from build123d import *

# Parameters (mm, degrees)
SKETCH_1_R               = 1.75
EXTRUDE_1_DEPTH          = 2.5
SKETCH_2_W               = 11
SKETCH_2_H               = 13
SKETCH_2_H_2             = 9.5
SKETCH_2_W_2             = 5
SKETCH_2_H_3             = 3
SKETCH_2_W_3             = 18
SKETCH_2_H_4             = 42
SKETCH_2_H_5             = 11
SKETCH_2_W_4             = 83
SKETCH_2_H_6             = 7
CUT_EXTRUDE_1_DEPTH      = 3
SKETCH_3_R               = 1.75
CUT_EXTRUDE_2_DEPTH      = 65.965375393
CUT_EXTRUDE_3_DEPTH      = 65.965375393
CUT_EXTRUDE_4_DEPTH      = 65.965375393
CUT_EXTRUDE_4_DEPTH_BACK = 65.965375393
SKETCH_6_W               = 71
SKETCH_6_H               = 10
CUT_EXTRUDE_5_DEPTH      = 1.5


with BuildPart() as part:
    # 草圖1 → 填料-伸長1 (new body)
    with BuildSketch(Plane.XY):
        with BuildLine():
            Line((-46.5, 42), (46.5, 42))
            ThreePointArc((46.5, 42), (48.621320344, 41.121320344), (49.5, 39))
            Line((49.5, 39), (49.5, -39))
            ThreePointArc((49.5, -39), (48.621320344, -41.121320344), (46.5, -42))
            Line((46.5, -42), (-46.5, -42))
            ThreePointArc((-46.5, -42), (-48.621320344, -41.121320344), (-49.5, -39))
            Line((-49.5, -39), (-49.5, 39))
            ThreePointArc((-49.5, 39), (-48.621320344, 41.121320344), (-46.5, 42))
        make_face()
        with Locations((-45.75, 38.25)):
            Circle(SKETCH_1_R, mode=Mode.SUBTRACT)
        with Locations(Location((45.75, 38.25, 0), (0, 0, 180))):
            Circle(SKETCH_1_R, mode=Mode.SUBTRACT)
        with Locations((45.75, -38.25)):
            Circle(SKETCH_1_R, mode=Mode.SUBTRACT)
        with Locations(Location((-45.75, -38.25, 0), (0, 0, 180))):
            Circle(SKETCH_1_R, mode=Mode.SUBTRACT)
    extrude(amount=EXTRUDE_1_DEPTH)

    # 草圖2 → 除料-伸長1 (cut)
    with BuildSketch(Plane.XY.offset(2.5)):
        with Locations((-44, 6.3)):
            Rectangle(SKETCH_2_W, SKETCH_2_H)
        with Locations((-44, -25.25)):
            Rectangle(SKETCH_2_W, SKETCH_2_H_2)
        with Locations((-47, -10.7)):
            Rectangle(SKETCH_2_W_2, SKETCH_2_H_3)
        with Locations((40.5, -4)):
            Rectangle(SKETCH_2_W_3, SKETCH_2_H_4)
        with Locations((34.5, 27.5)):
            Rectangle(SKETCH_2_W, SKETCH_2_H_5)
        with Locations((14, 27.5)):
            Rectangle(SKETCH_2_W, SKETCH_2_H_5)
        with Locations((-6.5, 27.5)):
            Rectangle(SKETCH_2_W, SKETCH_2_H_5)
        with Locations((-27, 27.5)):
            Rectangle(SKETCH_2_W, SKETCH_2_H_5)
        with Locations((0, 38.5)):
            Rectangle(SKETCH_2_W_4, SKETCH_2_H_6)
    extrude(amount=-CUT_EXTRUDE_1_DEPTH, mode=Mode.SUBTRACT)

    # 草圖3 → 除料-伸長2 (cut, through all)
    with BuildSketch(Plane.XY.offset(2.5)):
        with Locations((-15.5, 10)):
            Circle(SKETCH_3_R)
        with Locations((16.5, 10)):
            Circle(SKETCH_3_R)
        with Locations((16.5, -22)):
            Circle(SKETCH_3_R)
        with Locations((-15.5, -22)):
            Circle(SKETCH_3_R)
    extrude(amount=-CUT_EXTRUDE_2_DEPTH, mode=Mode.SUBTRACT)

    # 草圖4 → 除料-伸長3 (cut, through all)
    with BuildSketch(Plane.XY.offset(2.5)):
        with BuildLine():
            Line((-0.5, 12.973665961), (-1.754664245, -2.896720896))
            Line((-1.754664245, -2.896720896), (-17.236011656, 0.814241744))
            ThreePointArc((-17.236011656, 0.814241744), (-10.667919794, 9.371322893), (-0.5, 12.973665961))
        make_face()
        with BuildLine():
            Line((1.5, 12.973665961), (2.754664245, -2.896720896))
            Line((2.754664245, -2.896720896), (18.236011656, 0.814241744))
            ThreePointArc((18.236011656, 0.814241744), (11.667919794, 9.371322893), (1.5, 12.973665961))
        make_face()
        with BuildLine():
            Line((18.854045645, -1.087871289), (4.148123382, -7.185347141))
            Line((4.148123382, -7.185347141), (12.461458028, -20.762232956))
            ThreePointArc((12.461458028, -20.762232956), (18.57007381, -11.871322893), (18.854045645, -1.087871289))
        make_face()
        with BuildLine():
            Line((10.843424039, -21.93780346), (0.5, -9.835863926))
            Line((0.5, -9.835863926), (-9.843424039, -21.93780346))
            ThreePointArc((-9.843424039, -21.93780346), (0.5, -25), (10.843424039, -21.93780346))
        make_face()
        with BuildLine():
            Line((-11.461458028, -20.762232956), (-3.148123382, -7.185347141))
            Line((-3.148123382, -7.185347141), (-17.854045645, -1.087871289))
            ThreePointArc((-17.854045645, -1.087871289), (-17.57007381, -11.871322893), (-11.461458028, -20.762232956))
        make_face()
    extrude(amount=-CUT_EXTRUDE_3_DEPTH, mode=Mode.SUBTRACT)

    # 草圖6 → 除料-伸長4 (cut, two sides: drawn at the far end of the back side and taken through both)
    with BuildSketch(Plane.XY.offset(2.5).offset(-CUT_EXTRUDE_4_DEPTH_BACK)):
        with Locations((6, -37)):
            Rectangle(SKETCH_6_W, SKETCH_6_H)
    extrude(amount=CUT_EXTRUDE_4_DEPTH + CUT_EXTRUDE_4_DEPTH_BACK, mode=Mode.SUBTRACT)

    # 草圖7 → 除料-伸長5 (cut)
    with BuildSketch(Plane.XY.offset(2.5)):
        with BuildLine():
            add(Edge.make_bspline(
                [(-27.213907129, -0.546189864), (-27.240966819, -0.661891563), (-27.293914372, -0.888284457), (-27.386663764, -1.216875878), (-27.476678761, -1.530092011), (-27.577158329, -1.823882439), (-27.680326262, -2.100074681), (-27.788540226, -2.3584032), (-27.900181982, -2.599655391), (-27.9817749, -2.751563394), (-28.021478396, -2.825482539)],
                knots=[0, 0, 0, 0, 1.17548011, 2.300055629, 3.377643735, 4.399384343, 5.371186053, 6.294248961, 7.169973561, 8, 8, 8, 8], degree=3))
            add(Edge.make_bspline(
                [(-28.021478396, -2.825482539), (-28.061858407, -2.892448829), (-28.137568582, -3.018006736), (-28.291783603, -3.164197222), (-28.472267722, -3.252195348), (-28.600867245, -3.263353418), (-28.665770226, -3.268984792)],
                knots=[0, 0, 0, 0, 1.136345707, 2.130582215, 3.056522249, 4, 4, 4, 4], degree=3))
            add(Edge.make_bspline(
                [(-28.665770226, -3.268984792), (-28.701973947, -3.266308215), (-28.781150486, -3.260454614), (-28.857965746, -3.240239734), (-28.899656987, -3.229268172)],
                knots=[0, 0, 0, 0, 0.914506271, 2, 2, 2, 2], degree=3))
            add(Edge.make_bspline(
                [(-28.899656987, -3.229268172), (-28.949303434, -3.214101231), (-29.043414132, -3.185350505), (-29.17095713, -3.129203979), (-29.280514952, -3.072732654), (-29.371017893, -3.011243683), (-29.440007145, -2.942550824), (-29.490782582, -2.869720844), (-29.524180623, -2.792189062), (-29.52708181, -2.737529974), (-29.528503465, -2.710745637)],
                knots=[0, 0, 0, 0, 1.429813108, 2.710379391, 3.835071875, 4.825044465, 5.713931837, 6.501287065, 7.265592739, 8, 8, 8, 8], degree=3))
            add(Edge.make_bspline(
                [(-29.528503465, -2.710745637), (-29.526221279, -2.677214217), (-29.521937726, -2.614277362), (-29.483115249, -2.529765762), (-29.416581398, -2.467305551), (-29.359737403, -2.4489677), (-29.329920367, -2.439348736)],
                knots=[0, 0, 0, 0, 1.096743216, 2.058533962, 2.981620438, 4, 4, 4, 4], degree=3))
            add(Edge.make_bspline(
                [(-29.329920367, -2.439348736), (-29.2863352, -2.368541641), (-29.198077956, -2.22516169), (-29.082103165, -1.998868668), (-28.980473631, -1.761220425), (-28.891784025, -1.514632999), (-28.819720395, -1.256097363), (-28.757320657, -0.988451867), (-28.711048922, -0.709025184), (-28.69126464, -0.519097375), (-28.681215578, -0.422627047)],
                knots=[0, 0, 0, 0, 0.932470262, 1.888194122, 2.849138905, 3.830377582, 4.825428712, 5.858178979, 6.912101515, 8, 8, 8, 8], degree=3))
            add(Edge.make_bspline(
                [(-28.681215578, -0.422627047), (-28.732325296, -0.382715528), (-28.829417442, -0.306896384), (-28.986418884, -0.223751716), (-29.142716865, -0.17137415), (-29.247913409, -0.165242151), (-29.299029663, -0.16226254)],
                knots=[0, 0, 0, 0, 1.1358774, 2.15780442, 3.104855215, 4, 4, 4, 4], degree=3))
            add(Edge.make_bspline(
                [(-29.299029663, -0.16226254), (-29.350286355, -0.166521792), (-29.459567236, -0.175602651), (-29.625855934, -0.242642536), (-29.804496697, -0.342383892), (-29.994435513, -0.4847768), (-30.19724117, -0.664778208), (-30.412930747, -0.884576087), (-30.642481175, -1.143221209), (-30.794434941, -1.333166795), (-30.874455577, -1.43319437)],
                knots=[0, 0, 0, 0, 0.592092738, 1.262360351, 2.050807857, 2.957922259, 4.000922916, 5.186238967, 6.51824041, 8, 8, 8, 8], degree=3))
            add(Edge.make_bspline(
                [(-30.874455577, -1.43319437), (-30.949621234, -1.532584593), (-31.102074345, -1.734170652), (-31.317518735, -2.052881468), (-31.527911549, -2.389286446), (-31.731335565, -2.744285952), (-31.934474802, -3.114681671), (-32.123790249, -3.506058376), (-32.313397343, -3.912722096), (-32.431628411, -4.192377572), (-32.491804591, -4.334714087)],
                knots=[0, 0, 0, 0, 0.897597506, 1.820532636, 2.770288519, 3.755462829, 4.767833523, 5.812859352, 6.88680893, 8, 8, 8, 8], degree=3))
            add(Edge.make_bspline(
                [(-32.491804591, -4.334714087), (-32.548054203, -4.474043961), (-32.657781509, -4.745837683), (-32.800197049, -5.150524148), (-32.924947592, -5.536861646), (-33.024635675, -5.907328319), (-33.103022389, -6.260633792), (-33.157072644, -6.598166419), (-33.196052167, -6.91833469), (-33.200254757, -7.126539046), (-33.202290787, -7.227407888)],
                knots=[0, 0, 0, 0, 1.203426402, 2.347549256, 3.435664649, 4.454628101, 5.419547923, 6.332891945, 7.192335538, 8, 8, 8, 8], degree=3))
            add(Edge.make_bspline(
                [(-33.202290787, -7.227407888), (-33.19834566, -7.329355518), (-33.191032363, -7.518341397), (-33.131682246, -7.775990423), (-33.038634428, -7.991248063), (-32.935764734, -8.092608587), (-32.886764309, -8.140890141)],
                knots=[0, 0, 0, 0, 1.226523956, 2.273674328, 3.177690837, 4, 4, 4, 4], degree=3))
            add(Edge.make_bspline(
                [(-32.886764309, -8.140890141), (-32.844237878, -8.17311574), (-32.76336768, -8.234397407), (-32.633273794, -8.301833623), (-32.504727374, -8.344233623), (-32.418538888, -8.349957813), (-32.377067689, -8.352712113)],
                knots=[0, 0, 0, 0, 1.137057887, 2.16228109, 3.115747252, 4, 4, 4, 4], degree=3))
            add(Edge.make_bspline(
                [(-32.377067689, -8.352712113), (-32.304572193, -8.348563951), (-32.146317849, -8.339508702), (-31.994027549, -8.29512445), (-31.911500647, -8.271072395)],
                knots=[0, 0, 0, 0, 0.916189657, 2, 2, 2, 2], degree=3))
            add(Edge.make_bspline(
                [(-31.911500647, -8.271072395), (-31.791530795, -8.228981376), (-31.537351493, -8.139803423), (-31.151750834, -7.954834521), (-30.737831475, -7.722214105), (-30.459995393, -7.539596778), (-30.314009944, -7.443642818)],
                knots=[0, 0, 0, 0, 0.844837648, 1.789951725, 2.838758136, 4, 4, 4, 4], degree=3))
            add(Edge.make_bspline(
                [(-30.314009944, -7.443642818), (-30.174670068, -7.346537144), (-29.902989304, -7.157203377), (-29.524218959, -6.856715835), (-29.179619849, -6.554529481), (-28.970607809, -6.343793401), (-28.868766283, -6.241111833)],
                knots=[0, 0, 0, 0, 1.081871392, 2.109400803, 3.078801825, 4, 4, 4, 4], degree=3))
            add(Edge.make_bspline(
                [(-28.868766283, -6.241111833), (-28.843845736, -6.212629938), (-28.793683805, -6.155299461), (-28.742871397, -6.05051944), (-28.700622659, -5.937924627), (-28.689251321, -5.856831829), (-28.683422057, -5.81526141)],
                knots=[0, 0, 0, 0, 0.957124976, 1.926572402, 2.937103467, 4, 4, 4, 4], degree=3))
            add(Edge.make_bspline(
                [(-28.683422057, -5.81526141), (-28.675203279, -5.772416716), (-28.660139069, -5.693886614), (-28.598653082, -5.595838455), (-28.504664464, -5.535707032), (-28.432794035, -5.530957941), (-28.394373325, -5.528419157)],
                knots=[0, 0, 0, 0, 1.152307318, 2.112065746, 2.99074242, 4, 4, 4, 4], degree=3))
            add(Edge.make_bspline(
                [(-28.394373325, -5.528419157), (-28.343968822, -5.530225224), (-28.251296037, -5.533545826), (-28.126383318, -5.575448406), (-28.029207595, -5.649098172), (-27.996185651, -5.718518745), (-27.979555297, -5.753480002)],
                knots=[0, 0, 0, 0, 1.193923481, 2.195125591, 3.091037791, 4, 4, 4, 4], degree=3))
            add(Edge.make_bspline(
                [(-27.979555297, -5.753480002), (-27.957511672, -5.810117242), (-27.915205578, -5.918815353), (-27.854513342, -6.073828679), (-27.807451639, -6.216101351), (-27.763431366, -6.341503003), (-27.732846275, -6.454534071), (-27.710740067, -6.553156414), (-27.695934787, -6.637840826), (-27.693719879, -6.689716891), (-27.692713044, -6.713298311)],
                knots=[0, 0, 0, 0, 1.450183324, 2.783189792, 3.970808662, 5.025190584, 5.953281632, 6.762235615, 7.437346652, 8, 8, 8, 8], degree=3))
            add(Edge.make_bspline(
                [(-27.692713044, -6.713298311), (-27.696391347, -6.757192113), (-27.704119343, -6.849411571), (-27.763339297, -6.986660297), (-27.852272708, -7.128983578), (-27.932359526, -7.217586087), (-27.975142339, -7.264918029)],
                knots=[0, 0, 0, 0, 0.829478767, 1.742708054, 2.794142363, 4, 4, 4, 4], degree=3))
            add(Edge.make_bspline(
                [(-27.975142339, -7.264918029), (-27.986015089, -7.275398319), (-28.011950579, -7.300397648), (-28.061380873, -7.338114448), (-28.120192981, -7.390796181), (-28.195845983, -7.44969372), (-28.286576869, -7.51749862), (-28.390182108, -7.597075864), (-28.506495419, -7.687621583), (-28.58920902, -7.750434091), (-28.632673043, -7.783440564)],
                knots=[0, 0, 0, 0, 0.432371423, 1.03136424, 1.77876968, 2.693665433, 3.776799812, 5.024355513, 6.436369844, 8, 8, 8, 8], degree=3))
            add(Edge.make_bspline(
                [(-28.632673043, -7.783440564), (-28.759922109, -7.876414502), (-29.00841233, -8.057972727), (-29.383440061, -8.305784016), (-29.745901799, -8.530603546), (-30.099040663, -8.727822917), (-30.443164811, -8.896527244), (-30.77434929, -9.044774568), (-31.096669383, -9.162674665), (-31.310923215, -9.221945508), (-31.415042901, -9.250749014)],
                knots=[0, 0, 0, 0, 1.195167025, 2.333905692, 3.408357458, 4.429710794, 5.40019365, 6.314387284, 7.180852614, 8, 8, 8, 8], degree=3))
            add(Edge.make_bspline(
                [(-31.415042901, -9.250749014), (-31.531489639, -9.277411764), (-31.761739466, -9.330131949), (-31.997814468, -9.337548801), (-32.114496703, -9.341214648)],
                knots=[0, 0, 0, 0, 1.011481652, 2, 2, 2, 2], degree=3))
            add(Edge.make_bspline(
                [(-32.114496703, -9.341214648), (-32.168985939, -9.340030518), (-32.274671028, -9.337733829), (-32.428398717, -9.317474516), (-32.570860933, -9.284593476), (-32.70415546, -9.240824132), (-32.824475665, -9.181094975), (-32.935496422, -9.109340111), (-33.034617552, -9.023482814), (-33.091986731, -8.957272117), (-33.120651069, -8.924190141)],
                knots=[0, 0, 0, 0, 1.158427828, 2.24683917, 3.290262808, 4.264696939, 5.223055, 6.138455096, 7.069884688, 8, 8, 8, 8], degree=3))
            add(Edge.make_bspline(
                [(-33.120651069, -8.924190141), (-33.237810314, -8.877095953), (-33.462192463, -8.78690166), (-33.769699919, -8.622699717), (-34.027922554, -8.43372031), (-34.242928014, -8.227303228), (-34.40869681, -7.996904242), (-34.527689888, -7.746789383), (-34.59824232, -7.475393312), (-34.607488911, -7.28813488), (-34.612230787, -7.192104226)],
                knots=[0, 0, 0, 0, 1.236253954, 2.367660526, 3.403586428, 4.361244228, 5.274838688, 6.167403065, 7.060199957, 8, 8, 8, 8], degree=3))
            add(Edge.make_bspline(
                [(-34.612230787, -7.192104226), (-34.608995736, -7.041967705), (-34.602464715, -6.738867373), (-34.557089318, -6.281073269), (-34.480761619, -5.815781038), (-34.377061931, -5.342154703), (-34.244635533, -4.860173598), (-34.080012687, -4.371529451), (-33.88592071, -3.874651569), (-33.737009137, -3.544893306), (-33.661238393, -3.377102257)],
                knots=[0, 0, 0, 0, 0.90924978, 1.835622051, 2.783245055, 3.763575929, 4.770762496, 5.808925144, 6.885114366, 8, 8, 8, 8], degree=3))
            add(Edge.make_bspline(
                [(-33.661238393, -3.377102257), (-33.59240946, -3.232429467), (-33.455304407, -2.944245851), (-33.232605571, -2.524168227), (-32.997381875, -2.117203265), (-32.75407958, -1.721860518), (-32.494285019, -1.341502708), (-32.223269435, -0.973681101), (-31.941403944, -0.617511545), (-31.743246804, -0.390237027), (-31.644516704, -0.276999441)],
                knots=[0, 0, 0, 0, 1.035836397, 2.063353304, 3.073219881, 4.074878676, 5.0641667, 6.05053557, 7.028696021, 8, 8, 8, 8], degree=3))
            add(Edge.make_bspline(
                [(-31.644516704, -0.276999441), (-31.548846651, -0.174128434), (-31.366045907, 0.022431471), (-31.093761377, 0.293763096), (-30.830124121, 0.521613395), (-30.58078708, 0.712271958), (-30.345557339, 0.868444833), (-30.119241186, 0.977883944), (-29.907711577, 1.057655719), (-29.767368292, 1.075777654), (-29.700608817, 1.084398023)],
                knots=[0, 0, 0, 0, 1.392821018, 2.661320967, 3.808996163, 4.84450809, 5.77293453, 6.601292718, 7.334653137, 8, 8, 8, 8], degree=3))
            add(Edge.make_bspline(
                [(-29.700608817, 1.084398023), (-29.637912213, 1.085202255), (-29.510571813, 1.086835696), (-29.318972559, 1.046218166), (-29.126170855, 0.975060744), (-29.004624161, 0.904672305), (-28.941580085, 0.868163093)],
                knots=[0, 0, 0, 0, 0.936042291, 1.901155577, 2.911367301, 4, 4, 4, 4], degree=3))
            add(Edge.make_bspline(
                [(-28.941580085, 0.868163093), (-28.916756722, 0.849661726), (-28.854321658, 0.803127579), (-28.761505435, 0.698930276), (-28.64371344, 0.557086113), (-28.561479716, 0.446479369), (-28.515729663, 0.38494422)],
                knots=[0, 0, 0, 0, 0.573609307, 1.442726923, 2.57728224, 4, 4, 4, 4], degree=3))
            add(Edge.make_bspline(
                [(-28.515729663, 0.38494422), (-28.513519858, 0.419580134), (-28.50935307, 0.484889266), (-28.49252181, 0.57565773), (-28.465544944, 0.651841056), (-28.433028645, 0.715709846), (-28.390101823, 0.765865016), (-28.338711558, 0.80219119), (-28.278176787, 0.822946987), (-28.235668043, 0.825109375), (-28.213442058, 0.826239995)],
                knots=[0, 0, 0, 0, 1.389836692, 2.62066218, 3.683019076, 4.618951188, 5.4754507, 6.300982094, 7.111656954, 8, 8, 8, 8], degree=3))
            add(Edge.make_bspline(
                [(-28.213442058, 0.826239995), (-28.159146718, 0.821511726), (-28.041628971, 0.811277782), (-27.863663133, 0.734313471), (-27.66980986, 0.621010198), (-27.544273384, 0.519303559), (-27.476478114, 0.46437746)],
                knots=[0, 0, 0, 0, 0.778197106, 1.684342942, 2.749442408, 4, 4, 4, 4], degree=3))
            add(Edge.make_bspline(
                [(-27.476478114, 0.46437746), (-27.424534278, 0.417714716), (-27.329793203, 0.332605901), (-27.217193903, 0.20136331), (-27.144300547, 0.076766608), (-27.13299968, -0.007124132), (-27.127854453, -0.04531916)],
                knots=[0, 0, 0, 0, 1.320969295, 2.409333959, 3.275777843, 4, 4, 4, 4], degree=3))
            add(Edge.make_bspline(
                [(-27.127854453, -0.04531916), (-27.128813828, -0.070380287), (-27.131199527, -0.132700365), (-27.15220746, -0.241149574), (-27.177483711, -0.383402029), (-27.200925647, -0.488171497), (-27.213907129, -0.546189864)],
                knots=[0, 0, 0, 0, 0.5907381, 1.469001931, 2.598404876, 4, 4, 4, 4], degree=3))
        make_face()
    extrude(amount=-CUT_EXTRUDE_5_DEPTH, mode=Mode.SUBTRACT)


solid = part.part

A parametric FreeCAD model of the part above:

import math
import FreeCAD as App
import Part
import Sketcher

V = App.Vector
Q = App.Units.Quantity


def add_polygon(sketch, points):
    """Adds a closed chain of lines whose ends are joined by coincident constraints."""
    first, n = sketch.GeometryCount, len(points)
    for a, b in zip(points, points[1:] + points[:1]):
        sketch.addGeometry(Part.LineSegment(App.Vector(*a, 0), App.Vector(*b, 0)), False)
    for i in range(n):
        sketch.addConstraint(Sketcher.Constraint("Coincident", first + i, 2, first + (i + 1) % n, 1))

doc = App.newDocument("Part")
params = doc.addObject("Spreadsheet::Sheet", "Params")
for row, (alias, value) in enumerate([
    ("sketch1_radius", "3 mm"),
    ("sketch1_diameter", "3.5 mm"),
    ("sketch1_width", "93 mm"),
    ("sketch1_height", "78 mm"),
    ("pad1_length", "2.5 mm"),
    ("sketch2_width", "11 mm"),
    ("sketch2_width2", "5 mm"),
    ("sketch2_width3", "18 mm"),
    ("sketch2_width4", "83 mm"),
    ("sketch2_height", "13 mm"),
    ("pocket1_length", "3 mm"),
    ("sketch3_diameter", "3.5 mm"),
    ("sketch4_radius", "19 mm"),
    ("sketch5_width", "71 mm"),
    ("sketch5_height", "10 mm"),
    ("pocket5_length", "1.5 mm"),
], start=1):
    params.set(f"A{row}", alias)
    params.set(f"B{row}", "=" + value)
    params.setAlias(f"B{row}", alias)

body = doc.addObject("PartDesign::Body", "Body")

# Sketch on XY plane
sketch1 = doc.addObject("Sketcher::SketchObject", "Sketch")
body.addObject(sketch1)
sketch1.AttachmentSupport = (doc.XY_Plane, [""])
sketch1.MapMode = "FlatFace"
sketch1.addGeometry(Part.LineSegment(V(46.5, 42, 0), V(-46.5, 42, 0)), False)
sketch1.addGeometry(Part.ArcOfCircle(Part.Circle(V(-46.5, 39, 0), V(0, 0, 1), 3), math.radians(90), math.radians(180)), False)
sketch1.addGeometry(Part.LineSegment(V(-49.5, 39, 0), V(-49.5, -39, 0)), False)
sketch1.addGeometry(Part.ArcOfCircle(Part.Circle(V(-46.5, -39, 0), V(0, 0, 1), 3), math.radians(180), math.radians(270)), False)
sketch1.addGeometry(Part.LineSegment(V(-46.5, -42, 0), V(46.5, -42, 0)), False)
sketch1.addGeometry(Part.ArcOfCircle(Part.Circle(V(46.5, -39, 0), V(0, 0, 1), 3), math.radians(-90), math.radians(0)), False)
sketch1.addGeometry(Part.LineSegment(V(49.5, -39, 0), V(49.5, 39, 0)), False)
sketch1.addGeometry(Part.ArcOfCircle(Part.Circle(V(46.5, 39, 0), V(0, 0, 1), 3), math.radians(0), math.radians(90)), False)
sketch1.addGeometry(Part.Circle(V(45.8, -38.2, 0), V(0, 0, 1), 1.8), False)
sketch1.addGeometry(Part.Circle(V(-45.8, -38.2, 0), V(0, 0, 1), 1.8), False)
sketch1.addGeometry(Part.Circle(V(45.8, 38.2, 0), V(0, 0, 1), 1.8), False)
sketch1.addGeometry(Part.Circle(V(-45.8, 38.2, 0), V(0, 0, 1), 1.8), False)
sketch1.addConstraint(Sketcher.Constraint("Tangent", 0, 2, 1, 1))
sketch1.addConstraint(Sketcher.Constraint("Tangent", 1, 2, 2, 1))
sketch1.addConstraint(Sketcher.Constraint("Tangent", 2, 2, 3, 1))
sketch1.addConstraint(Sketcher.Constraint("Tangent", 3, 2, 4, 1))
sketch1.addConstraint(Sketcher.Constraint("Tangent", 4, 2, 5, 1))
sketch1.addConstraint(Sketcher.Constraint("Tangent", 5, 2, 6, 1))
sketch1.addConstraint(Sketcher.Constraint("Tangent", 6, 2, 7, 1))
sketch1.addConstraint(Sketcher.Constraint("Tangent", 7, 2, 0, 1))
sketch1.addConstraint(Sketcher.Constraint("Horizontal", 0))
sketch1.addConstraint(Sketcher.Constraint("Vertical", 2))
sketch1.addConstraint(Sketcher.Constraint("Horizontal", 4))
sketch1.addConstraint(Sketcher.Constraint("Vertical", 6))
sketch1.addConstraint(Sketcher.Constraint("Equal", 1, 3))
sketch1.addConstraint(Sketcher.Constraint("Equal", 3, 5))
sketch1.addConstraint(Sketcher.Constraint("Equal", 5, 7))
sketch1.addConstraint(Sketcher.Constraint("Equal", 8, 9))
sketch1.addConstraint(Sketcher.Constraint("Equal", 9, 10))
sketch1.addConstraint(Sketcher.Constraint("Equal", 10, 11))
sketch1.addConstraint(Sketcher.Constraint("Symmetric", 1, 3, 5, 3, -1, 1))
sketch1.addConstraint(Sketcher.Constraint("Symmetric", 9, 3, 10, 3, -1, 1))
sketch1.addConstraint(Sketcher.Constraint("Symmetric", 8, 3, 11, 3, -1, 1))
sketch1.addConstraint(Sketcher.Constraint("Symmetric", 8, 3, 9, 3, -2))
sketch1.addConstraint(Sketcher.Constraint("Radius", 1, Q("3 mm")))
sketch1.addConstraint(Sketcher.Constraint("Diameter", 8, Q("3.5 mm")))
sketch1.addConstraint(Sketcher.Constraint("DistanceX", 0, 2, 0, 1, Q("93 mm")))
sketch1.addConstraint(Sketcher.Constraint("DistanceY", 2, 2, 2, 1, Q("78 mm")))
sketch1.addConstraint(Sketcher.Constraint("DistanceX", 9, 3, 8, 3, Q("91.5 mm")))
sketch1.addConstraint(Sketcher.Constraint("DistanceY", 8, 3, 10, 3, Q("76.5 mm")))
sketch1.setExpression("Constraints[22]", "Params.sketch1_radius")
sketch1.setExpression("Constraints[23]", "Params.sketch1_diameter")
sketch1.setExpression("Constraints[24]", "Params.sketch1_width")
sketch1.setExpression("Constraints[25]", "Params.sketch1_height")
pad1 = doc.addObject("PartDesign::Pad", "Pad")
body.addObject(pad1)
pad1.Profile = sketch1
pad1.setExpression("Length", "Params.pad1_length")

# Sketch on XY plane
sketch2 = doc.addObject("Sketcher::SketchObject", "Sketch001")
body.addObject(sketch2)
sketch2.AttachmentSupport = (doc.XY_Plane, [""])
sketch2.MapMode = "FlatFace"
sketch2.AttachmentOffset = App.Placement(V(0, 0, 2.5), App.Rotation())
add_polygon(sketch2, [(-49.5, 12.8), (-49.5, -0.2), (-38.5, -0.2), (-38.5, 12.8)])  # lines 0-3
add_polygon(sketch2, [(-49.5, -20.5), (-49.5, -30), (-38.5, -30), (-38.5, -20.5)])  # lines 4-7
add_polygon(sketch2, [(-49.5, -9.2), (-49.5, -12.2), (-44.5, -12.2), (-44.5, -9.2)])  # lines 8-11
add_polygon(sketch2, [(31.5, 17), (31.5, -25), (49.5, -25), (49.5, 17)])  # lines 12-15
add_polygon(sketch2, [(29, 33), (29, 22), (40, 22), (40, 33)])  # lines 16-19
add_polygon(sketch2, [(8.5, 33), (8.5, 22), (19.5, 22), (19.5, 33)])  # lines 20-23
add_polygon(sketch2, [(-12, 33), (-12, 22), (-1, 22), (-1, 33)])  # lines 24-27
add_polygon(sketch2, [(-32.5, 33), (-32.5, 22), (-21.5, 22), (-21.5, 33)])  # lines 28-31
add_polygon(sketch2, [(-41.5, 42), (-41.5, 35), (41.5, 35), (41.5, 42)])  # lines 32-35
sketch2.addConstraint(Sketcher.Constraint("Vertical", 0))
sketch2.addConstraint(Sketcher.Constraint("Horizontal", 1))
sketch2.addConstraint(Sketcher.Constraint("Vertical", 2))
sketch2.addConstraint(Sketcher.Constraint("Horizontal", 3))
sketch2.addConstraint(Sketcher.Constraint("Vertical", 4))
sketch2.addConstraint(Sketcher.Constraint("Horizontal", 5))
sketch2.addConstraint(Sketcher.Constraint("Vertical", 6))
sketch2.addConstraint(Sketcher.Constraint("Horizontal", 7))
sketch2.addConstraint(Sketcher.Constraint("Vertical", 8))
sketch2.addConstraint(Sketcher.Constraint("Horizontal", 9))
sketch2.addConstraint(Sketcher.Constraint("Vertical", 10))
sketch2.addConstraint(Sketcher.Constraint("Horizontal", 11))
sketch2.addConstraint(Sketcher.Constraint("Vertical", 12))
sketch2.addConstraint(Sketcher.Constraint("Horizontal", 13))
sketch2.addConstraint(Sketcher.Constraint("Vertical", 14))
sketch2.addConstraint(Sketcher.Constraint("Horizontal", 15))
sketch2.addConstraint(Sketcher.Constraint("Vertical", 16))
sketch2.addConstraint(Sketcher.Constraint("Horizontal", 17))
sketch2.addConstraint(Sketcher.Constraint("Vertical", 18))
sketch2.addConstraint(Sketcher.Constraint("Horizontal", 19))
sketch2.addConstraint(Sketcher.Constraint("Vertical", 20))
sketch2.addConstraint(Sketcher.Constraint("Horizontal", 21))
sketch2.addConstraint(Sketcher.Constraint("Vertical", 22))
sketch2.addConstraint(Sketcher.Constraint("Horizontal", 23))
sketch2.addConstraint(Sketcher.Constraint("Vertical", 24))
sketch2.addConstraint(Sketcher.Constraint("Horizontal", 25))
sketch2.addConstraint(Sketcher.Constraint("Vertical", 26))
sketch2.addConstraint(Sketcher.Constraint("Horizontal", 27))
sketch2.addConstraint(Sketcher.Constraint("Vertical", 28))
sketch2.addConstraint(Sketcher.Constraint("Horizontal", 29))
sketch2.addConstraint(Sketcher.Constraint("Vertical", 30))
sketch2.addConstraint(Sketcher.Constraint("Horizontal", 31))
sketch2.addConstraint(Sketcher.Constraint("Vertical", 32))
sketch2.addConstraint(Sketcher.Constraint("Horizontal", 33))
sketch2.addConstraint(Sketcher.Constraint("Vertical", 34))
sketch2.addConstraint(Sketcher.Constraint("Horizontal", 35))
sketch2.addConstraint(Sketcher.Constraint("Horizontal", 17, 2, 20, 2))
sketch2.addConstraint(Sketcher.Constraint("Horizontal", 19, 2, 22, 2))
sketch2.addConstraint(Sketcher.Constraint("Horizontal", 21, 2, 24, 2))
sketch2.addConstraint(Sketcher.Constraint("Horizontal", 23, 2, 26, 2))
sketch2.addConstraint(Sketcher.Constraint("Horizontal", 25, 2, 28, 2))
sketch2.addConstraint(Sketcher.Constraint("Horizontal", 27, 2, 30, 2))
sketch2.addConstraint(Sketcher.Constraint("Vertical", 3, 2, 4, 2))
sketch2.addConstraint(Sketcher.Constraint("Vertical", 2, 2, 5, 2))
sketch2.addConstraint(Sketcher.Constraint("Vertical", 7, 2, 8, 2))
sketch2.addConstraint(Sketcher.Constraint("Equal", 7, 17))
sketch2.addConstraint(Sketcher.Constraint("Equal", 19, 21))
sketch2.addConstraint(Sketcher.Constraint("Equal", 23, 25))
sketch2.addConstraint(Sketcher.Constraint("Equal", 27, 29))
sketch2.addConstraint(Sketcher.Constraint("Equal", 31, 16))
sketch2.addConstraint(Sketcher.Constraint("DistanceX", 1, 1, 1, 2, Q("11 mm")))
sketch2.addConstraint(Sketcher.Constraint("DistanceX", 9, 1, 9, 2, Q("5 mm")))
sketch2.addConstraint(Sketcher.Constraint("DistanceX", 13, 1, 13, 2, Q("18 mm")))
sketch2.addConstraint(Sketcher.Constraint("DistanceX", 33, 1, 33, 2, Q("83 mm")))
sketch2.addConstraint(Sketcher.Constraint("DistanceY", 0, 2, 0, 1, Q("13 mm")))
sketch2.addConstraint(Sketcher.Constraint("DistanceY", 8, 2, 8, 1, Q("3 mm")))
sketch2.addConstraint(Sketcher.Constraint("DistanceY", 12, 2, 12, 1, Q("42 mm")))
sketch2.addConstraint(Sketcher.Constraint("DistanceY", 32, 2, 32, 1, Q("7 mm")))
sketch2.addConstraint(Sketcher.Constraint("DistanceY", 4, 2, 4, 1, Q("9.5 mm")))
sketch2.addConstraint(Sketcher.Constraint("DistanceY", 4, 2, -1, 1, Q("30 mm")))
sketch2.addConstraint(Sketcher.Constraint("DistanceY", 12, 2, -1, 1, Q("25 mm")))
sketch2.addConstraint(Sketcher.Constraint("DistanceX", -1, 1, 16, 2, Q("29 mm")))
sketch2.addConstraint(Sketcher.Constraint("DistanceY", -1, 1, 16, 2, Q("22 mm")))
sketch2.addConstraint(Sketcher.Constraint("DistanceX", 24, 2, -1, 1, Q("12 mm")))
sketch2.addConstraint(Sketcher.Constraint("DistanceY", -1, 1, 32, 2, Q("35 mm")))
sketch2.addConstraint(Sketcher.Constraint("DistanceY", 8, 2, 0, 2, Q("12 mm")))
sketch2.addConstraint(Sketcher.Constraint("DistanceX", 6, 2, 12, 2, Q("70 mm")))
sketch2.addConstraint(Sketcher.Constraint("DistanceX", 20, 2, 15, 2, Q("23 mm")))
sketch2.addConstraint(Sketcher.Constraint("DistanceX", 2, 2, 28, 2, Q("6 mm")))
sketch2.addConstraint(Sketcher.Constraint("DistanceX", 32, 2, 31, 2, Q("9 mm")))
sketch2.addConstraint(Sketcher.Constraint("DistanceX", 0, 2, -1, 1, Q("49.5 mm")))
sketch2.addConstraint(Sketcher.Constraint("DistanceY", 0, 2, -1, 1, Q("0.2 mm")))
sketch2.setExpression("Constraints[86]", "Params.sketch2_width")
sketch2.setExpression("Constraints[87]", "Params.sketch2_width2")
sketch2.setExpression("Constraints[88]", "Params.sketch2_width3")
sketch2.setExpression("Constraints[89]", "Params.sketch2_width4")
sketch2.setExpression("Constraints[90]", "Params.sketch2_height")
pocket1 = doc.addObject("PartDesign::Pocket", "Pocket")
body.addObject(pocket1)
pocket1.Profile = sketch2
pocket1.setExpression("Length", "Params.pocket1_length")

# Sketch on XY plane
sketch3 = doc.addObject("Sketcher::SketchObject", "Sketch002")
body.addObject(sketch3)
sketch3.AttachmentSupport = (doc.XY_Plane, [""])
sketch3.MapMode = "FlatFace"
sketch3.AttachmentOffset = App.Placement(V(0, 0, 2.5), App.Rotation())
sketch3.addGeometry(Part.Circle(V(-15.5, 10, 0), V(0, 0, 1), 1.8), False)
sketch3.addGeometry(Part.Circle(V(16.5, 10, 0), V(0, 0, 1), 1.8), False)
sketch3.addGeometry(Part.Circle(V(16.5, -22, 0), V(0, 0, 1), 1.8), False)
sketch3.addGeometry(Part.Circle(V(-15.5, -22, 0), V(0, 0, 1), 1.8), False)
sketch3.addConstraint(Sketcher.Constraint("Equal", 0, 1))
sketch3.addConstraint(Sketcher.Constraint("Equal", 1, 2))
sketch3.addConstraint(Sketcher.Constraint("Equal", 2, 3))
sketch3.addConstraint(Sketcher.Constraint("Horizontal", 0, 3, 1, 3))
sketch3.addConstraint(Sketcher.Constraint("Horizontal", 2, 3, 3, 3))
sketch3.addConstraint(Sketcher.Constraint("Vertical", 1, 3, 2, 3))
sketch3.addConstraint(Sketcher.Constraint("Vertical", 0, 3, 3, 3))
sketch3.addConstraint(Sketcher.Constraint("Diameter", 0, Q("3.5 mm")))
sketch3.addConstraint(Sketcher.Constraint("DistanceY", -1, 1, 0, 3, Q("10 mm")))
sketch3.addConstraint(Sketcher.Constraint("DistanceY", 2, 3, -1, 1, Q("22 mm")))
sketch3.addConstraint(Sketcher.Constraint("DistanceX", 0, 3, 1, 3, Q("32 mm")))
sketch3.addConstraint(Sketcher.Constraint("DistanceX", 0, 3, -1, 1, Q("15.5 mm")))
sketch3.setExpression("Constraints[7]", "Params.sketch3_diameter")
pocket2 = doc.addObject("PartDesign::Pocket", "Pocket001")
body.addObject(pocket2)
pocket2.Profile = sketch3
pocket2.Type = "ThroughAll"

# Sketch on XY plane
sketch4 = doc.addObject("Sketcher::SketchObject", "Sketch003")
body.addObject(sketch4)
sketch4.AttachmentSupport = (doc.XY_Plane, [""])
sketch4.MapMode = "FlatFace"
sketch4.AttachmentOffset = App.Placement(V(0, 0, 2.5), App.Rotation())
sketch4.addGeometry(Part.LineSegment(V(-2, -3, 0), V(0, 13, 0)), False)
sketch4.addGeometry(Part.ArcOfCircle(Part.Circle(V(0, -6, 0), V(0, 0, 1), 19), math.radians(93), math.radians(159)), False)
sketch4.addGeometry(Part.LineSegment(V(-17, 1, 0), V(-2, -3, 0)), False)
sketch4.addGeometry(Part.LineSegment(V(2, 13, 0), V(3, -3, 0)), False)
sketch4.addGeometry(Part.LineSegment(V(3, -3, 0), V(18, 1, 0)), False)
sketch4.addGeometry(Part.ArcOfCircle(Part.Circle(V(0, -6, 0), V(0, 0, 1), 19), math.radians(21), math.radians(87)), False)
sketch4.addGeometry(Part.LineSegment(V(19, -1, 0), V(4, -7, 0)), False)
sketch4.addGeometry(Part.LineSegment(V(4, -7, 0), V(12, -21, 0)), False)
sketch4.addGeometry(Part.ArcOfCircle(Part.Circle(V(1, -6, 0), V(0, 0, 1), 19), math.radians(-51), math.radians(15)), False)
sketch4.addGeometry(Part.LineSegment(V(11, -22, 0), V(0, -10, 0)), False)
sketch4.addGeometry(Part.LineSegment(V(0, -10, 0), V(-10, -22, 0)), False)
sketch4.addGeometry(Part.ArcOfCircle(Part.Circle(V(0, -6, 0), V(0, 0, 1), 19), math.radians(-123), math.radians(-57)), False)
sketch4.addGeometry(Part.LineSegment(V(-11, -21, 0), V(-3, -7, 0)), False)
sketch4.addGeometry(Part.LineSegment(V(-3, -7, 0), V(-18, -1, 0)), False)
sketch4.addGeometry(Part.ArcOfCircle(Part.Circle(V(0, -6, 0), V(0, 0, 1), 19), math.radians(165), math.radians(231)), False)
sketch4.addConstraint(Sketcher.Constraint("Coincident", 0, 2, 1, 1))
sketch4.addConstraint(Sketcher.Constraint("Coincident", 1, 2, 2, 1))
sketch4.addConstraint(Sketcher.Constraint("Coincident", 2, 2, 0, 1))
sketch4.addConstraint(Sketcher.Constraint("Coincident", 3, 2, 4, 1))
sketch4.addConstraint(Sketcher.Constraint("Coincident", 4, 2, 5, 1))
sketch4.addConstraint(Sketcher.Constraint("Coincident", 5, 2, 3, 1))
sketch4.addConstraint(Sketcher.Constraint("Coincident", 6, 2, 7, 1))
sketch4.addConstraint(Sketcher.Constraint("Coincident", 7, 2, 8, 1))
sketch4.addConstraint(Sketcher.Constraint("Coincident", 8, 2, 6, 1))
sketch4.addConstraint(Sketcher.Constraint("Coincident", 9, 2, 10, 1))
sketch4.addConstraint(Sketcher.Constraint("Coincident", 10, 2, 11, 1))
sketch4.addConstraint(Sketcher.Constraint("Coincident", 11, 2, 9, 1))
sketch4.addConstraint(Sketcher.Constraint("Coincident", 12, 2, 13, 1))
sketch4.addConstraint(Sketcher.Constraint("Coincident", 13, 2, 14, 1))
sketch4.addConstraint(Sketcher.Constraint("Coincident", 14, 2, 12, 1))
sketch4.addConstraint(Sketcher.Constraint("Coincident", 5, 3, 1, 3))
sketch4.addConstraint(Sketcher.Constraint("Coincident", 8, 3, 1, 3))
sketch4.addConstraint(Sketcher.Constraint("Coincident", 11, 3, 1, 3))
sketch4.addConstraint(Sketcher.Constraint("Coincident", 14, 3, 1, 3))
sketch4.addConstraint(Sketcher.Constraint("Equal", 1, 5))
sketch4.addConstraint(Sketcher.Constraint("Equal", 5, 8))
sketch4.addConstraint(Sketcher.Constraint("Equal", 8, 11))
sketch4.addConstraint(Sketcher.Constraint("Equal", 11, 14))
sketch4.addConstraint(Sketcher.Constraint("Horizontal", 2, 2, 3, 2))
sketch4.addConstraint(Sketcher.Constraint("Horizontal", 1, 2, 4, 2))
sketch4.addConstraint(Sketcher.Constraint("Horizontal", 0, 2, 5, 2))
sketch4.addConstraint(Sketcher.Constraint("Horizontal", 10, 2, 11, 2))
sketch4.addConstraint(Sketcher.Constraint("Horizontal", 6, 2, 12, 2))
sketch4.addConstraint(Sketcher.Constraint("Horizontal", 8, 2, 13, 2))
sketch4.addConstraint(Sketcher.Constraint("Horizontal", 7, 2, 14, 2))
sketch4.addConstraint(Sketcher.Constraint("Vertical", 14, 3, 9, 2))
sketch4.addConstraint(Sketcher.Constraint("Equal", 0, 2))
sketch4.addConstraint(Sketcher.Constraint("Equal", 2, 3))
sketch4.addConstraint(Sketcher.Constraint("Equal", 4, 6))
sketch4.addConstraint(Sketcher.Constraint("Equal", 6, 7))
sketch4.addConstraint(Sketcher.Constraint("Equal", 7, 9))
sketch4.addConstraint(Sketcher.Constraint("Equal", 10, 12))
sketch4.addConstraint(Sketcher.Constraint("Radius", 1, Q("19 mm")))
sketch4.addConstraint(Sketcher.Constraint("DistanceY", 1, 3, -1, 1, Q("6 mm")))
sketch4.addConstraint(Sketcher.Constraint("DistanceX", 0, 2, 14, 3, Q("1 mm")))
sketch4.addConstraint(Sketcher.Constraint("DistanceX", -1, 1, 1, 3, Q("0.5 mm")))
sketch4.addConstraint(Sketcher.Constraint("DistanceX", 6, 2, 11, 2, Q("6.695301 mm")))
sketch4.addConstraint(Sketcher.Constraint("DistanceX", 1, 2, -1, 1, Q("17.236012 mm")))
sketch4.addConstraint(Sketcher.Constraint("DistanceY", 2, 2, -1, 1, Q("2.896721 mm")))
sketch4.addConstraint(Sketcher.Constraint("DistanceX", -1, 1, 7, 2, Q("12.461458 mm")))
sketch4.addConstraint(Sketcher.Constraint("DistanceY", 8, 2, -1, 1, Q("1.087871 mm")))
sketch4.setExpression("Constraints[37]", "Params.sketch4_radius")
pocket3 = doc.addObject("PartDesign::Pocket", "Pocket002")
body.addObject(pocket3)
pocket3.Profile = sketch4
pocket3.Type = "ThroughAll"

# Sketch on XY plane
sketch5 = doc.addObject("Sketcher::SketchObject", "Sketch004")
body.addObject(sketch5)
sketch5.AttachmentSupport = (doc.XY_Plane, [""])
sketch5.MapMode = "FlatFace"
sketch5.AttachmentOffset = App.Placement(V(0, 0, 2.5), App.Rotation())
add_polygon(sketch5, [(-30, -32), (-30, -42), (42, -42), (42, -32)])  # lines 0-3
sketch5.addConstraint(Sketcher.Constraint("Vertical", 0))
sketch5.addConstraint(Sketcher.Constraint("Horizontal", 1))
sketch5.addConstraint(Sketcher.Constraint("Vertical", 2))
sketch5.addConstraint(Sketcher.Constraint("Horizontal", 3))
sketch5.addConstraint(Sketcher.Constraint("DistanceX", 1, 1, 1, 2, Q("71 mm")))
sketch5.addConstraint(Sketcher.Constraint("DistanceY", 0, 2, 0, 1, Q("10 mm")))
sketch5.addConstraint(Sketcher.Constraint("DistanceY", 0, 2, -1, 1, Q("42 mm")))
sketch5.addConstraint(Sketcher.Constraint("DistanceX", 0, 2, -1, 1, Q("29.5 mm")))
sketch5.setExpression("Constraints[8]", "Params.sketch5_width")
sketch5.setExpression("Constraints[9]", "Params.sketch5_height")
pocket4 = doc.addObject("PartDesign::Pocket", "Pocket003")
body.addObject(pocket4)
pocket4.Profile = sketch5
pocket4.Type = "ThroughAll"
pocket4.Midplane = True

# Sketch on XY plane
sketch6 = doc.addObject("Sketcher::SketchObject", "Sketch005")
body.addObject(sketch6)
sketch6.AttachmentSupport = (doc.XY_Plane, [""])
sketch6.MapMode = "FlatFace"
sketch6.AttachmentOffset = App.Placement(V(0, 0, 2.5), App.Rotation())
sketch6.addGeometry(Part.BSplineCurve([V(-27.213907, -0.54619, 0), V(-27.240967, -0.661892, 0), V(-27.293914, -0.888284, 0), V(-27.386664, -1.216876, 0), V(-27.476679, -1.530092, 0), V(-27.577158, -1.823882, 0), V(-27.680326, -2.100075, 0), V(-27.78854, -2.358403, 0), V(-27.900182, -2.599655, 0), V(-27.981775, -2.751563, 0), V(-28.021478, -2.825483, 0)], [4, 1, 1, 1, 1, 1, 1, 1, 4], [0, 1.17548011, 2.300055629, 3.377643735, 4.399384343, 5.371186053, 6.294248961, 7.169973561, 8], False, 3, [1, 1, 1, 1, 1, 1, 1, 1, 1, 1, 1], False), False)
sketch6.addGeometry(Part.BSplineCurve([V(-27.127854, -0.045319, 0), V(-27.128814, -0.07038, 0), V(-27.1312, -0.1327, 0), V(-27.152207, -0.24115, 0), V(-27.177484, -0.383402, 0), V(-27.200926, -0.488171, 0), V(-27.213907, -0.54619, 0)], [4, 1, 1, 1, 4], [0, 0.5907381, 1.469001931, 2.598404876, 4], False, 3, [1, 1, 1, 1, 1, 1, 1], False), False)
sketch6.addGeometry(Part.BSplineCurve([V(-27.476478, 0.464377, 0), V(-27.424534, 0.417715, 0), V(-27.329793, 0.332606, 0), V(-27.217194, 0.201363, 0), V(-27.144301, 0.076767, 0), V(-27.133, -0.007124, 0), V(-27.127854, -0.045319, 0)], [4, 1, 1, 1, 4], [0, 1.320969295, 2.409333959, 3.275777843, 4], False, 3, [1, 1, 1, 1, 1, 1, 1], False), False)
sketch6.addGeometry(Part.BSplineCurve([V(-28.213442, 0.82624, 0), V(-28.159147, 0.821512, 0), V(-28.041629, 0.811278, 0), V(-27.863663, 0.734313, 0), V(-27.66981, 0.62101, 0), V(-27.544273, 0.519304, 0), V(-27.476478, 0.464377, 0)], [4, 1, 1, 1, 4], [0, 0.778197106, 1.684342942, 2.749442408, 4], False, 3, [1, 1, 1, 1, 1, 1, 1], False), False)
sketch6.addGeometry(Part.BSplineCurve([V(-28.51573, 0.384944, 0), V(-28.51352, 0.41958, 0), V(-28.509353, 0.484889, 0), V(-28.492522, 0.575658, 0), V(-28.465545, 0.651841, 0), V(-28.433029, 0.71571, 0), V(-28.390102, 0.765865, 0), V(-28.338712, 0.802191, 0), V(-28.278177, 0.822947, 0), V(-28.235668, 0.825109, 0), V(-28.213442, 0.82624, 0)], [4, 1, 1, 1, 1, 1, 1, 1, 4], [0, 1.389836692, 2.62066218, 3.683019076, 4.618951188, 5.4754507, 6.300982094, 7.111656954, 8], False, 3, [1, 1, 1, 1, 1, 1, 1, 1, 1, 1, 1], False), False)
sketch6.addGeometry(Part.BSplineCurve([V(-28.94158, 0.868163, 0), V(-28.916757, 0.849662, 0), V(-28.854322, 0.803128, 0), V(-28.761505, 0.69893, 0), V(-28.643713, 0.557086, 0), V(-28.56148, 0.446479, 0), V(-28.51573, 0.384944, 0)], [4, 1, 1, 1, 4], [0, 0.573609307, 1.442726923, 2.57728224, 4], False, 3, [1, 1, 1, 1, 1, 1, 1], False), False)
sketch6.addGeometry(Part.BSplineCurve([V(-29.700609, 1.084398, 0), V(-29.637912, 1.085202, 0), V(-29.510572, 1.086836, 0), V(-29.318973, 1.046218, 0), V(-29.126171, 0.975061, 0), V(-29.004624, 0.904672, 0), V(-28.94158, 0.868163, 0)], [4, 1, 1, 1, 4], [0, 0.936042291, 1.901155577, 2.911367301, 4], False, 3, [1, 1, 1, 1, 1, 1, 1], False), False)
sketch6.addGeometry(Part.BSplineCurve([V(-31.644517, -0.276999, 0), V(-31.548847, -0.174128, 0), V(-31.366046, 0.022431, 0), V(-31.093761, 0.293763, 0), V(-30.830124, 0.521613, 0), V(-30.580787, 0.712272, 0), V(-30.345557, 0.868445, 0), V(-30.119241, 0.977884, 0), V(-29.907712, 1.057656, 0), V(-29.767368, 1.075778, 0), V(-29.700609, 1.084398, 0)], [4, 1, 1, 1, 1, 1, 1, 1, 4], [0, 1.392821018, 2.661320967, 3.808996163, 4.84450809, 5.77293453, 6.601292718, 7.334653137, 8], False, 3, [1, 1, 1, 1, 1, 1, 1, 1, 1, 1, 1], False), False)
sketch6.addGeometry(Part.BSplineCurve([V(-33.661238, -3.377102, 0), V(-33.592409, -3.232429, 0), V(-33.455304, -2.944246, 0), V(-33.232606, -2.524168, 0), V(-32.997382, -2.117203, 0), V(-32.75408, -1.721861, 0), V(-32.494285, -1.341503, 0), V(-32.223269, -0.973681, 0), V(-31.941404, -0.617512, 0), V(-31.743247, -0.390237, 0), V(-31.644517, -0.276999, 0)], [4, 1, 1, 1, 1, 1, 1, 1, 4], [0, 1.035836397, 2.063353304, 3.073219881, 4.074878676, 5.0641667, 6.05053557, 7.028696021, 8], False, 3, [1, 1, 1, 1, 1, 1, 1, 1, 1, 1, 1], False), False)
sketch6.addGeometry(Part.BSplineCurve([V(-34.612231, -7.192104, 0), V(-34.608996, -7.041968, 0), V(-34.602465, -6.738867, 0), V(-34.557089, -6.281073, 0), V(-34.480762, -5.815781, 0), V(-34.377062, -5.342155, 0), V(-34.244636, -4.860174, 0), V(-34.080013, -4.371529, 0), V(-33.885921, -3.874652, 0), V(-33.737009, -3.544893, 0), V(-33.661238, -3.377102, 0)], [4, 1, 1, 1, 1, 1, 1, 1, 4], [0, 0.90924978, 1.835622051, 2.783245055, 3.763575929, 4.770762496, 5.808925144, 6.885114366, 8], False, 3, [1, 1, 1, 1, 1, 1, 1, 1, 1, 1, 1], False), False)
sketch6.addGeometry(Part.BSplineCurve([V(-33.120651, -8.92419, 0), V(-33.23781, -8.877096, 0), V(-33.462192, -8.786902, 0), V(-33.7697, -8.6227, 0), V(-34.027923, -8.43372, 0), V(-34.242928, -8.227303, 0), V(-34.408697, -7.996904, 0), V(-34.52769, -7.746789, 0), V(-34.598242, -7.475393, 0), V(-34.607489, -7.288135, 0), V(-34.612231, -7.192104, 0)], [4, 1, 1, 1, 1, 1, 1, 1, 4], [0, 1.236253954, 2.367660526, 3.403586428, 4.361244228, 5.274838688, 6.167403065, 7.060199957, 8], False, 3, [1, 1, 1, 1, 1, 1, 1, 1, 1, 1, 1], False), False)
sketch6.addGeometry(Part.BSplineCurve([V(-32.114497, -9.341215, 0), V(-32.168986, -9.340031, 0), V(-32.274671, -9.337734, 0), V(-32.428399, -9.317475, 0), V(-32.570861, -9.284593, 0), V(-32.704155, -9.240824, 0), V(-32.824476, -9.181095, 0), V(-32.935496, -9.10934, 0), V(-33.034618, -9.023483, 0), V(-33.091987, -8.957272, 0), V(-33.120651, -8.92419, 0)], [4, 1, 1, 1, 1, 1, 1, 1, 4], [0, 1.158427828, 2.24683917, 3.290262808, 4.264696939, 5.223055, 6.138455096, 7.069884688, 8], False, 3, [1, 1, 1, 1, 1, 1, 1, 1, 1, 1, 1], False), False)
sketch6.addGeometry(Part.BSplineCurve([V(-31.415043, -9.250749, 0), V(-31.53149, -9.277412, 0), V(-31.761739, -9.330132, 0), V(-31.997814, -9.337549, 0), V(-32.114497, -9.341215, 0)], [4, 1, 4], [0, 1.011481652, 2], False, 3, [1, 1, 1, 1, 1], False), False)
sketch6.addGeometry(Part.BSplineCurve([V(-28.632673, -7.783441, 0), V(-28.759922, -7.876415, 0), V(-29.008412, -8.057973, 0), V(-29.38344, -8.305784, 0), V(-29.745902, -8.530604, 0), V(-30.099041, -8.727823, 0), V(-30.443165, -8.896527, 0), V(-30.774349, -9.044775, 0), V(-31.096669, -9.162675, 0), V(-31.310923, -9.221946, 0), V(-31.415043, -9.250749, 0)], [4, 1, 1, 1, 1, 1, 1, 1, 4], [0, 1.195167025, 2.333905692, 3.408357458, 4.429710794, 5.40019365, 6.314387284, 7.180852614, 8], False, 3, [1, 1, 1, 1, 1, 1, 1, 1, 1, 1, 1], False), False)
sketch6.addGeometry(Part.BSplineCurve([V(-27.975142, -7.264918, 0), V(-27.986015, -7.275398, 0), V(-28.011951, -7.300398, 0), V(-28.061381, -7.338114, 0), V(-28.120193, -7.390796, 0), V(-28.195846, -7.449694, 0), V(-28.286577, -7.517499, 0), V(-28.390182, -7.597076, 0), V(-28.506495, -7.687622, 0), V(-28.589209, -7.750434, 0), V(-28.632673, -7.783441, 0)], [4, 1, 1, 1, 1, 1, 1, 1, 4], [0, 0.432371423, 1.03136424, 1.77876968, 2.693665433, 3.776799812, 5.024355513, 6.436369844, 8], False, 3, [1, 1, 1, 1, 1, 1, 1, 1, 1, 1, 1], False), False)
sketch6.addGeometry(Part.BSplineCurve([V(-27.692713, -6.713298, 0), V(-27.696391, -6.757192, 0), V(-27.704119, -6.849412, 0), V(-27.763339, -6.98666, 0), V(-27.852273, -7.128984, 0), V(-27.93236, -7.217586, 0), V(-27.975142, -7.264918, 0)], [4, 1, 1, 1, 4], [0, 0.829478767, 1.742708054, 2.794142363, 4], False, 3, [1, 1, 1, 1, 1, 1, 1], False), False)
sketch6.addGeometry(Part.BSplineCurve([V(-27.979555, -5.75348, 0), V(-27.957512, -5.810117, 0), V(-27.915206, -5.918815, 0), V(-27.854513, -6.073829, 0), V(-27.807452, -6.216101, 0), V(-27.763431, -6.341503, 0), V(-27.732846, -6.454534, 0), V(-27.71074, -6.553156, 0), V(-27.695935, -6.637841, 0), V(-27.69372, -6.689717, 0), V(-27.692713, -6.713298, 0)], [4, 1, 1, 1, 1, 1, 1, 1, 4], [0, 1.450183324, 2.783189792, 3.970808662, 5.025190584, 5.953281632, 6.762235615, 7.437346652, 8], False, 3, [1, 1, 1, 1, 1, 1, 1, 1, 1, 1, 1], False), False)
sketch6.addGeometry(Part.BSplineCurve([V(-28.394373, -5.528419, 0), V(-28.343969, -5.530225, 0), V(-28.251296, -5.533546, 0), V(-28.126383, -5.575448, 0), V(-28.029208, -5.649098, 0), V(-27.996186, -5.718519, 0), V(-27.979555, -5.75348, 0)], [4, 1, 1, 1, 4], [0, 1.193923481, 2.195125591, 3.091037791, 4], False, 3, [1, 1, 1, 1, 1, 1, 1], False), False)
sketch6.addGeometry(Part.BSplineCurve([V(-28.683422, -5.815261, 0), V(-28.675203, -5.772417, 0), V(-28.660139, -5.693887, 0), V(-28.598653, -5.595838, 0), V(-28.504664, -5.535707, 0), V(-28.432794, -5.530958, 0), V(-28.394373, -5.528419, 0)], [4, 1, 1, 1, 4], [0, 1.152307318, 2.112065746, 2.99074242, 4], False, 3, [1, 1, 1, 1, 1, 1, 1], False), False)
sketch6.addGeometry(Part.BSplineCurve([V(-28.868766, -6.241112, 0), V(-28.843846, -6.21263, 0), V(-28.793684, -6.155299, 0), V(-28.742871, -6.050519, 0), V(-28.700623, -5.937925, 0), V(-28.689251, -5.856832, 0), V(-28.683422, -5.815261, 0)], [4, 1, 1, 1, 4], [0, 0.957124976, 1.926572402, 2.937103467, 4], False, 3, [1, 1, 1, 1, 1, 1, 1], False), False)
sketch6.addGeometry(Part.BSplineCurve([V(-30.31401, -7.443643, 0), V(-30.17467, -7.346537, 0), V(-29.902989, -7.157203, 0), V(-29.524219, -6.856716, 0), V(-29.17962, -6.554529, 0), V(-28.970608, -6.343793, 0), V(-28.868766, -6.241112, 0)], [4, 1, 1, 1, 4], [0, 1.081871392, 2.109400803, 3.078801825, 4], False, 3, [1, 1, 1, 1, 1, 1, 1], False), False)
sketch6.addGeometry(Part.BSplineCurve([V(-31.911501, -8.271072, 0), V(-31.791531, -8.228981, 0), V(-31.537351, -8.139803, 0), V(-31.151751, -7.954835, 0), V(-30.737831, -7.722214, 0), V(-30.459995, -7.539597, 0), V(-30.31401, -7.443643, 0)], [4, 1, 1, 1, 4], [0, 0.844837648, 1.789951725, 2.838758136, 4], False, 3, [1, 1, 1, 1, 1, 1, 1], False), False)
sketch6.addGeometry(Part.BSplineCurve([V(-32.377068, -8.352712, 0), V(-32.304572, -8.348564, 0), V(-32.146318, -8.339509, 0), V(-31.994028, -8.295124, 0), V(-31.911501, -8.271072, 0)], [4, 1, 4], [0, 0.916189657, 2], False, 3, [1, 1, 1, 1, 1], False), False)
sketch6.addGeometry(Part.BSplineCurve([V(-32.886764, -8.14089, 0), V(-32.844238, -8.173116, 0), V(-32.763368, -8.234397, 0), V(-32.633274, -8.301834, 0), V(-32.504727, -8.344234, 0), V(-32.418539, -8.349958, 0), V(-32.377068, -8.352712, 0)], [4, 1, 1, 1, 4], [0, 1.137057887, 2.16228109, 3.115747252, 4], False, 3, [1, 1, 1, 1, 1, 1, 1], False), False)
sketch6.addGeometry(Part.BSplineCurve([V(-33.202291, -7.227408, 0), V(-33.198346, -7.329356, 0), V(-33.191032, -7.518341, 0), V(-33.131682, -7.77599, 0), V(-33.038634, -7.991248, 0), V(-32.935765, -8.092609, 0), V(-32.886764, -8.14089, 0)], [4, 1, 1, 1, 4], [0, 1.226523956, 2.273674328, 3.177690837, 4], False, 3, [1, 1, 1, 1, 1, 1, 1], False), False)
sketch6.addGeometry(Part.BSplineCurve([V(-32.491805, -4.334714, 0), V(-32.548054, -4.474044, 0), V(-32.657782, -4.745838, 0), V(-32.800197, -5.150524, 0), V(-32.924948, -5.536862, 0), V(-33.024636, -5.907328, 0), V(-33.103022, -6.260634, 0), V(-33.157073, -6.598166, 0), V(-33.196052, -6.918335, 0), V(-33.200255, -7.126539, 0), V(-33.202291, -7.227408, 0)], [4, 1, 1, 1, 1, 1, 1, 1, 4], [0, 1.203426402, 2.347549256, 3.435664649, 4.454628101, 5.419547923, 6.332891945, 7.192335538, 8], False, 3, [1, 1, 1, 1, 1, 1, 1, 1, 1, 1, 1], False), False)
sketch6.addGeometry(Part.BSplineCurve([V(-30.874456, -1.433194, 0), V(-30.949621, -1.532585, 0), V(-31.102074, -1.734171, 0), V(-31.317519, -2.052881, 0), V(-31.527912, -2.389286, 0), V(-31.731336, -2.744286, 0), V(-31.934475, -3.114682, 0), V(-32.12379, -3.506058, 0), V(-32.313397, -3.912722, 0), V(-32.431628, -4.192378, 0), V(-32.491805, -4.334714, 0)], [4, 1, 1, 1, 1, 1, 1, 1, 4], [0, 0.897597506, 1.820532636, 2.770288519, 3.755462829, 4.767833523, 5.812859352, 6.88680893, 8], False, 3, [1, 1, 1, 1, 1, 1, 1, 1, 1, 1, 1], False), False)
sketch6.addGeometry(Part.BSplineCurve([V(-29.29903, -0.162263, 0), V(-29.350286, -0.166522, 0), V(-29.459567, -0.175603, 0), V(-29.625856, -0.242643, 0), V(-29.804497, -0.342384, 0), V(-29.994436, -0.484777, 0), V(-30.197241, -0.664778, 0), V(-30.412931, -0.884576, 0), V(-30.642481, -1.143221, 0), V(-30.794435, -1.333167, 0), V(-30.874456, -1.433194, 0)], [4, 1, 1, 1, 1, 1, 1, 1, 4], [0, 0.592092738, 1.262360351, 2.050807857, 2.957922259, 4.000922916, 5.186238967, 6.51824041, 8], False, 3, [1, 1, 1, 1, 1, 1, 1, 1, 1, 1, 1], False), False)
sketch6.addGeometry(Part.BSplineCurve([V(-28.681216, -0.422627, 0), V(-28.732325, -0.382716, 0), V(-28.829417, -0.306896, 0), V(-28.986419, -0.223752, 0), V(-29.142717, -0.171374, 0), V(-29.247913, -0.165242, 0), V(-29.29903, -0.162263, 0)], [4, 1, 1, 1, 4], [0, 1.1358774, 2.15780442, 3.104855215, 4], False, 3, [1, 1, 1, 1, 1, 1, 1], False), False)
sketch6.addGeometry(Part.BSplineCurve([V(-29.32992, -2.439349, 0), V(-29.286335, -2.368542, 0), V(-29.198078, -2.225162, 0), V(-29.082103, -1.998869, 0), V(-28.980474, -1.76122, 0), V(-28.891784, -1.514633, 0), V(-28.81972, -1.256097, 0), V(-28.757321, -0.988452, 0), V(-28.711049, -0.709025, 0), V(-28.691265, -0.519097, 0), V(-28.681216, -0.422627, 0)], [4, 1, 1, 1, 1, 1, 1, 1, 4], [0, 0.932470262, 1.888194122, 2.849138905, 3.830377582, 4.825428712, 5.858178979, 6.912101515, 8], False, 3, [1, 1, 1, 1, 1, 1, 1, 1, 1, 1, 1], False), False)
sketch6.addGeometry(Part.BSplineCurve([V(-29.528503, -2.710746, 0), V(-29.526221, -2.677214, 0), V(-29.521938, -2.614277, 0), V(-29.483115, -2.529766, 0), V(-29.416581, -2.467306, 0), V(-29.359737, -2.448968, 0), V(-29.32992, -2.439349, 0)], [4, 1, 1, 1, 4], [0, 1.096743216, 2.058533962, 2.981620438, 4], False, 3, [1, 1, 1, 1, 1, 1, 1], False), False)
sketch6.addGeometry(Part.BSplineCurve([V(-28.899657, -3.229268, 0), V(-28.949303, -3.214101, 0), V(-29.043414, -3.185351, 0), V(-29.170957, -3.129204, 0), V(-29.280515, -3.072733, 0), V(-29.371018, -3.011244, 0), V(-29.440007, -2.942551, 0), V(-29.490783, -2.869721, 0), V(-29.524181, -2.792189, 0), V(-29.527082, -2.73753, 0), V(-29.528503, -2.710746, 0)], [4, 1, 1, 1, 1, 1, 1, 1, 4], [0, 1.429813108, 2.710379391, 3.835071875, 4.825044465, 5.713931837, 6.501287065, 7.265592739, 8], False, 3, [1, 1, 1, 1, 1, 1, 1, 1, 1, 1, 1], False), False)
sketch6.addGeometry(Part.BSplineCurve([V(-28.66577, -3.268985, 0), V(-28.701974, -3.266308, 0), V(-28.78115, -3.260455, 0), V(-28.857966, -3.24024, 0), V(-28.899657, -3.229268, 0)], [4, 1, 4], [0, 0.914506271, 2], False, 3, [1, 1, 1, 1, 1], False), False)
sketch6.addGeometry(Part.BSplineCurve([V(-28.021478, -2.825483, 0), V(-28.061858, -2.892449, 0), V(-28.137569, -3.018007, 0), V(-28.291784, -3.164197, 0), V(-28.472268, -3.252195, 0), V(-28.600867, -3.263353, 0), V(-28.66577, -3.268985, 0)], [4, 1, 1, 1, 4], [0, 1.136345707, 2.130582215, 3.056522249, 4], False, 3, [1, 1, 1, 1, 1, 1, 1], False), False)
sketch6.addConstraint(Sketcher.Constraint("Block", 0))
sketch6.addConstraint(Sketcher.Constraint("Block", 1))
sketch6.addConstraint(Sketcher.Constraint("Block", 2))
sketch6.addConstraint(Sketcher.Constraint("Block", 3))
sketch6.addConstraint(Sketcher.Constraint("Block", 4))
sketch6.addConstraint(Sketcher.Constraint("Block", 5))
sketch6.addConstraint(Sketcher.Constraint("Block", 6))
sketch6.addConstraint(Sketcher.Constraint("Block", 7))
sketch6.addConstraint(Sketcher.Constraint("Block", 8))
sketch6.addConstraint(Sketcher.Constraint("Block", 9))
sketch6.addConstraint(Sketcher.Constraint("Block", 10))
sketch6.addConstraint(Sketcher.Constraint("Block", 11))
sketch6.addConstraint(Sketcher.Constraint("Block", 12))
sketch6.addConstraint(Sketcher.Constraint("Block", 13))
sketch6.addConstraint(Sketcher.Constraint("Block", 14))
sketch6.addConstraint(Sketcher.Constraint("Block", 15))
sketch6.addConstraint(Sketcher.Constraint("Block", 16))
sketch6.addConstraint(Sketcher.Constraint("Block", 17))
sketch6.addConstraint(Sketcher.Constraint("Block", 18))
sketch6.addConstraint(Sketcher.Constraint("Block", 19))
sketch6.addConstraint(Sketcher.Constraint("Block", 20))
sketch6.addConstraint(Sketcher.Constraint("Block", 21))
sketch6.addConstraint(Sketcher.Constraint("Block", 22))
sketch6.addConstraint(Sketcher.Constraint("Block", 23))
sketch6.addConstraint(Sketcher.Constraint("Block", 24))
sketch6.addConstraint(Sketcher.Constraint("Block", 25))
sketch6.addConstraint(Sketcher.Constraint("Block", 26))
sketch6.addConstraint(Sketcher.Constraint("Block", 27))
sketch6.addConstraint(Sketcher.Constraint("Block", 28))
sketch6.addConstraint(Sketcher.Constraint("Block", 29))
sketch6.addConstraint(Sketcher.Constraint("Block", 30))
sketch6.addConstraint(Sketcher.Constraint("Block", 31))
sketch6.addConstraint(Sketcher.Constraint("Block", 32))
sketch6.addConstraint(Sketcher.Constraint("Block", 33))
pocket5 = doc.addObject("PartDesign::Pocket", "Pocket004")
body.addObject(pocket5)
pocket5.Profile = sketch6
pocket5.setExpression("Length", "Params.pocket5_length")

doc.recompute()
